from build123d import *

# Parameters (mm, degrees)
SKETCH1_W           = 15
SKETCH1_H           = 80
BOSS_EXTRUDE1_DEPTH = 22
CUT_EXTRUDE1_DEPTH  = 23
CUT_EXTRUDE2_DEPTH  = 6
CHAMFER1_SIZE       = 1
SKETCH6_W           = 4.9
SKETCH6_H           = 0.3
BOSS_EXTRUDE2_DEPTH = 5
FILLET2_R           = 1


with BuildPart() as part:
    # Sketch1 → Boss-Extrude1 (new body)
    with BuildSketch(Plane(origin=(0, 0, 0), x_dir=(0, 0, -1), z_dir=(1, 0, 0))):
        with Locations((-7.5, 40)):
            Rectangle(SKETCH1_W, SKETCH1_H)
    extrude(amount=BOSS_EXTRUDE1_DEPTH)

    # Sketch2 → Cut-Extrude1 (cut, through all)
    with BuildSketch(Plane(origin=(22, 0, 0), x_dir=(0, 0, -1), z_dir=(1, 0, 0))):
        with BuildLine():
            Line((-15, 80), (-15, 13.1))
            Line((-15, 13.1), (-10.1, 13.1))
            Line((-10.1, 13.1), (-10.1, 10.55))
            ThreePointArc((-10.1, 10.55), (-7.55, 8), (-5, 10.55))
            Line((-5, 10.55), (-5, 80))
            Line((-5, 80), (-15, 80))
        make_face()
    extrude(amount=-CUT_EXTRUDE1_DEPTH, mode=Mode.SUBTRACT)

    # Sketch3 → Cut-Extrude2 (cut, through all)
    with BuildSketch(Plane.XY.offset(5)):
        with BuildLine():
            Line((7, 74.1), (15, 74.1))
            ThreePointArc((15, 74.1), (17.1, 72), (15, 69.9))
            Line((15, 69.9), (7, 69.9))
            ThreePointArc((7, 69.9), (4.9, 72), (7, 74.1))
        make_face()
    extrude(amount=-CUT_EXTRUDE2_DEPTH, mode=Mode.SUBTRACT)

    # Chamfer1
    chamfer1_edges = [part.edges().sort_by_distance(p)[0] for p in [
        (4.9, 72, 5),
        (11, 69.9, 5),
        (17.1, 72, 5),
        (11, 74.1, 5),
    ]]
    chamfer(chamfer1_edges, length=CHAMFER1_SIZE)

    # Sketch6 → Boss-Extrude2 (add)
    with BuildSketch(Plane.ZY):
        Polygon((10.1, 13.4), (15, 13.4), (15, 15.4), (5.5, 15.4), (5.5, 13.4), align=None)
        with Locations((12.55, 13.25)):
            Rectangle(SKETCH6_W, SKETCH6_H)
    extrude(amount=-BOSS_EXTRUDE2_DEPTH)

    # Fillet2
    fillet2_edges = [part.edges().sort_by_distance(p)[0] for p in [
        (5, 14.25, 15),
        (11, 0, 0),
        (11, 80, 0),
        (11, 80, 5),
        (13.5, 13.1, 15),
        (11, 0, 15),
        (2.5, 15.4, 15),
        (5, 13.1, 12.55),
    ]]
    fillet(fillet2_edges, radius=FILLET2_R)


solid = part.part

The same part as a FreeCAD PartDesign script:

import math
import FreeCAD as App
import Part
import Sketcher


def edges_at(feature, points):
    """Names of the edges that pass closest to the given points."""
    edges = feature.Shape.Edges
    near = lambda p: min(range(len(edges)), key=lambda i: edges[i].distToShape(Part.Vertex(*p))[0])
    return sorted({f"Edge{near(p) + 1}" for p in points})

doc = App.newDocument("Part")
body = doc.addObject("PartDesign::Body", "Body")

# Sketch on YZ plane
sketch1 = body.newObject("Sketcher::SketchObject", "Sketch")
sketch1.AttachmentSupport = (doc.getObject("YZ_Plane"), [""])
sketch1.MapMode = "FlatFace"
sketch1.addGeometry([
    Part.LineSegment(App.Vector(80, 15, 0), App.Vector(0, 15, 0)),
    Part.LineSegment(App.Vector(0, 15, 0), App.Vector(0, 0, 0)),
    Part.LineSegment(App.Vector(0, 0, 0), App.Vector(80, 0, 0)),
    Part.LineSegment(App.Vector(80, 0, 0), App.Vector(80, 15, 0)),
], False)
sketch1.addConstraint([
    Sketcher.Constraint("Coincident", 0, 2, 1, 1),
    Sketcher.Constraint("Coincident", 1, 2, 2, 1),
    Sketcher.Constraint("Coincident", 2, 2, 3, 1),
    Sketcher.Constraint("Coincident", 3, 2, 0, 1),
    Sketcher.Constraint("Horizontal", 0),
    Sketcher.Constraint("Vertical", 1),
    Sketcher.Constraint("Horizontal", 2),
    Sketcher.Constraint("Vertical", 3),
    Sketcher.Constraint("Coincident", 1, 2, -1, 1),
    Sketcher.Constraint("DistanceX", 0, 2, 0, 1, 80.0),
    Sketcher.Constraint("DistanceY", 1, 2, 1, 1, 15.0),
])
pad1 = body.newObject("PartDesign::Pad", "Pad")
pad1.Profile = sketch1
pad1.Length = 22

# Sketch on YZ plane
sketch2 = body.newObject("Sketcher::SketchObject", "Sketch001")
sketch2.AttachmentSupport = (doc.getObject("YZ_Plane"), [""])
sketch2.MapMode = "FlatFace"
sketch2.AttachmentOffset = App.Placement(App.Vector(0, 0, 22), App.Rotation())
sketch2.addGeometry([
    Part.LineSegment(App.Vector(80, 15, 0), App.Vector(13.1, 15, 0)),  # 0
    Part.LineSegment(App.Vector(13.1, 15, 0), App.Vector(13.1, 10.1, 0)),  # 1
    Part.LineSegment(App.Vector(13.1, 10.1, 0), App.Vector(10.6, 10.1, 0)),  # 2
    Part.ArcOfCircle(Part.Circle(App.Vector(10.6, 7.5, 0), App.Vector(0, 0, 1), 2.5), math.radians(90), math.radians(270)),  # 3
    Part.LineSegment(App.Vector(10.6, 5, 0), App.Vector(80, 5, 0)),  # 4
    Part.LineSegment(App.Vector(80, 5, 0), App.Vector(80, 15, 0)),  # 5
], False)
sketch2.addConstraint([
    Sketcher.Constraint("Coincident", 0, 2, 1, 1),
    Sketcher.Constraint("Coincident", 1, 2, 2, 1),
    Sketcher.Constraint("Tangent", 2, 2, 3, 1),
    Sketcher.Constraint("Tangent", 3, 2, 4, 1),
    Sketcher.Constraint("Coincident", 4, 2, 5, 1),
    Sketcher.Constraint("Coincident", 5, 2, 0, 1),
    Sketcher.Constraint("Horizontal", 0),
    Sketcher.Constraint("Vertical", 1),
    Sketcher.Constraint("Horizontal", 2),
    Sketcher.Constraint("Horizontal", 4),
    Sketcher.Constraint("Vertical", 5),
    Sketcher.Constraint("DistanceY", 5, 1, 5, 2, 10.0),
    Sketcher.Constraint("Radius", 3, 2.55),
    Sketcher.Constraint("DistanceX", 0, 2, 0, 1, 66.9),
    Sketcher.Constraint("DistanceY", -1, 1, 0, 2, 15.0),
    Sketcher.Constraint("DistanceX", -1, 1, 4, 2, 80.0),
    Sketcher.Constraint("DistanceX", 2, 2, 2, 1, 2.55),
])
pocket1 = body.newObject("PartDesign::Pocket", "Pocket")
pocket1.Profile = sketch2
pocket1.Type = "ThroughAll"

# Sketch on XY plane
sketch3 = body.newObject("Sketcher::SketchObject", "Sketch002")
sketch3.AttachmentSupport = (doc.getObject("XY_Plane"), [""])
sketch3.MapMode = "FlatFace"
sketch3.AttachmentOffset = App.Placement(App.Vector(0, 0, 5), App.Rotation())
sketch3.addGeometry([
    Part.LineSegment(App.Vector(15, 74.1, 0), App.Vector(7, 74.1, 0)),
    Part.ArcOfCircle(Part.Circle(App.Vector(7, 72, 0), App.Vector(0, 0, 1), 2.1), math.radians(90), math.radians(270)),
    Part.LineSegment(App.Vector(7, 69.9, 0), App.Vector(15, 69.9, 0)),
    Part.ArcOfCircle(Part.Circle(App.Vector(15, 72, 0), App.Vector(0, 0, 1), 2.1), math.radians(-90), math.radians(90)),
], False)
sketch3.addConstraint([
    Sketcher.Constraint("Tangent", 0, 2, 1, 1),
    Sketcher.Constraint("Tangent", 1, 2, 2, 1),
    Sketcher.Constraint("Tangent", 2, 2, 3, 1),
    Sketcher.Constraint("Tangent", 3, 2, 0, 1),
    Sketcher.Constraint("Horizontal", 0),
    Sketcher.Constraint("Horizontal", 2),
    Sketcher.Constraint("Radius", 1, 2.1),
    Sketcher.Constraint("DistanceX", 0, 2, 0, 1, 8.0),
    Sketcher.Constraint("DistanceX", -1, 1, 1, 3, 7.0),
    Sketcher.Constraint("DistanceY", -1, 1, 1, 3, 72.0),
])
pocket2 = body.newObject("PartDesign::Pocket", "Pocket001")
pocket2.Profile = sketch3
pocket2.Type = "ThroughAll"
doc.recompute()

chamfer = body.newObject("PartDesign::Chamfer", "Chamfer")
chamfer.Base = (pocket2, edges_at(pocket2, [
    (4.9, 72, 5),
    (11, 69.9, 5),
    (17.1, 72, 5),
    (11, 74.1, 5),
]))
chamfer.Size = 1

# Sketch on YZ plane
sketch4 = body.newObject("Sketcher::SketchObject", "Sketch003")
sketch4.AttachmentSupport = (doc.getObject("YZ_Plane"), [""])
sketch4.MapMode = "FlatFace"
sketch4.addGeometry([
    Part.LineSegment(App.Vector(15.4, 15, 0), App.Vector(15.4, 5.5, 0)),  # 0
    Part.LineSegment(App.Vector(15.4, 5.5, 0), App.Vector(13.4, 5.5, 0)),  # 1
    Part.LineSegment(App.Vector(13.4, 5.5, 0), App.Vector(13.4, 10.1, 0)),  # 2
    Part.LineSegment(App.Vector(13.4, 10.1, 0), App.Vector(13.1, 10.1, 0)),  # 3
    Part.LineSegment(App.Vector(13.1, 10.1, 0), App.Vector(13.1, 15, 0)),  # 4
    Part.LineSegment(App.Vector(13.1, 15, 0), App.Vector(15.4, 15, 0)),  # 5
], False)
sketch4.addConstraint([
    Sketcher.Constraint("Coincident", 0, 2, 1, 1),
    Sketcher.Constraint("Coincident", 1, 2, 2, 1),
    Sketcher.Constraint("Coincident", 2, 2, 3, 1),
    Sketcher.Constraint("Coincident", 3, 2, 4, 1),
    Sketcher.Constraint("Coincident", 4, 2, 5, 1),
    Sketcher.Constraint("Coincident", 5, 2, 0, 1),
    Sketcher.Constraint("Vertical", 0),
    Sketcher.Constraint("Horizontal", 1),
    Sketcher.Constraint("Vertical", 2),
    Sketcher.Constraint("Horizontal", 3),
    Sketcher.Constraint("Vertical", 4),
    Sketcher.Constraint("Horizontal", 5),
    Sketcher.Constraint("DistanceX", 1, 2, 1, 1, 2.0),
    Sketcher.Constraint("DistanceX", 3, 2, 3, 1, 0.3),
    Sketcher.Constraint("DistanceY", 0, 2, 0, 1, 9.5),
    Sketcher.Constraint("DistanceY", 2, 1, 2, 2, 4.6),
    Sketcher.Constraint("DistanceY", -1, 1, 4, 2, 15.0),
    Sketcher.Constraint("DistanceX", -1, 1, 0, 2, 15.4),
])
pad2 = body.newObject("PartDesign::Pad", "Pad001")
pad2.Profile = sketch4
pad2.Length = 5
doc.recompute()

fillet = body.newObject("PartDesign::Fillet", "Fillet")
fillet.Base = (pad2, edges_at(pad2, [
    (5, 14.25, 15),
    (11, 0, 0),
    (11, 80, 0),
    (11, 80, 5),
    (13.5, 13.1, 15),
    (11, 0, 15),
    (2.5, 15.4, 15),
    (5, 13.1, 12.55),
]))
fillet.Radius = 1

doc.recompute()
